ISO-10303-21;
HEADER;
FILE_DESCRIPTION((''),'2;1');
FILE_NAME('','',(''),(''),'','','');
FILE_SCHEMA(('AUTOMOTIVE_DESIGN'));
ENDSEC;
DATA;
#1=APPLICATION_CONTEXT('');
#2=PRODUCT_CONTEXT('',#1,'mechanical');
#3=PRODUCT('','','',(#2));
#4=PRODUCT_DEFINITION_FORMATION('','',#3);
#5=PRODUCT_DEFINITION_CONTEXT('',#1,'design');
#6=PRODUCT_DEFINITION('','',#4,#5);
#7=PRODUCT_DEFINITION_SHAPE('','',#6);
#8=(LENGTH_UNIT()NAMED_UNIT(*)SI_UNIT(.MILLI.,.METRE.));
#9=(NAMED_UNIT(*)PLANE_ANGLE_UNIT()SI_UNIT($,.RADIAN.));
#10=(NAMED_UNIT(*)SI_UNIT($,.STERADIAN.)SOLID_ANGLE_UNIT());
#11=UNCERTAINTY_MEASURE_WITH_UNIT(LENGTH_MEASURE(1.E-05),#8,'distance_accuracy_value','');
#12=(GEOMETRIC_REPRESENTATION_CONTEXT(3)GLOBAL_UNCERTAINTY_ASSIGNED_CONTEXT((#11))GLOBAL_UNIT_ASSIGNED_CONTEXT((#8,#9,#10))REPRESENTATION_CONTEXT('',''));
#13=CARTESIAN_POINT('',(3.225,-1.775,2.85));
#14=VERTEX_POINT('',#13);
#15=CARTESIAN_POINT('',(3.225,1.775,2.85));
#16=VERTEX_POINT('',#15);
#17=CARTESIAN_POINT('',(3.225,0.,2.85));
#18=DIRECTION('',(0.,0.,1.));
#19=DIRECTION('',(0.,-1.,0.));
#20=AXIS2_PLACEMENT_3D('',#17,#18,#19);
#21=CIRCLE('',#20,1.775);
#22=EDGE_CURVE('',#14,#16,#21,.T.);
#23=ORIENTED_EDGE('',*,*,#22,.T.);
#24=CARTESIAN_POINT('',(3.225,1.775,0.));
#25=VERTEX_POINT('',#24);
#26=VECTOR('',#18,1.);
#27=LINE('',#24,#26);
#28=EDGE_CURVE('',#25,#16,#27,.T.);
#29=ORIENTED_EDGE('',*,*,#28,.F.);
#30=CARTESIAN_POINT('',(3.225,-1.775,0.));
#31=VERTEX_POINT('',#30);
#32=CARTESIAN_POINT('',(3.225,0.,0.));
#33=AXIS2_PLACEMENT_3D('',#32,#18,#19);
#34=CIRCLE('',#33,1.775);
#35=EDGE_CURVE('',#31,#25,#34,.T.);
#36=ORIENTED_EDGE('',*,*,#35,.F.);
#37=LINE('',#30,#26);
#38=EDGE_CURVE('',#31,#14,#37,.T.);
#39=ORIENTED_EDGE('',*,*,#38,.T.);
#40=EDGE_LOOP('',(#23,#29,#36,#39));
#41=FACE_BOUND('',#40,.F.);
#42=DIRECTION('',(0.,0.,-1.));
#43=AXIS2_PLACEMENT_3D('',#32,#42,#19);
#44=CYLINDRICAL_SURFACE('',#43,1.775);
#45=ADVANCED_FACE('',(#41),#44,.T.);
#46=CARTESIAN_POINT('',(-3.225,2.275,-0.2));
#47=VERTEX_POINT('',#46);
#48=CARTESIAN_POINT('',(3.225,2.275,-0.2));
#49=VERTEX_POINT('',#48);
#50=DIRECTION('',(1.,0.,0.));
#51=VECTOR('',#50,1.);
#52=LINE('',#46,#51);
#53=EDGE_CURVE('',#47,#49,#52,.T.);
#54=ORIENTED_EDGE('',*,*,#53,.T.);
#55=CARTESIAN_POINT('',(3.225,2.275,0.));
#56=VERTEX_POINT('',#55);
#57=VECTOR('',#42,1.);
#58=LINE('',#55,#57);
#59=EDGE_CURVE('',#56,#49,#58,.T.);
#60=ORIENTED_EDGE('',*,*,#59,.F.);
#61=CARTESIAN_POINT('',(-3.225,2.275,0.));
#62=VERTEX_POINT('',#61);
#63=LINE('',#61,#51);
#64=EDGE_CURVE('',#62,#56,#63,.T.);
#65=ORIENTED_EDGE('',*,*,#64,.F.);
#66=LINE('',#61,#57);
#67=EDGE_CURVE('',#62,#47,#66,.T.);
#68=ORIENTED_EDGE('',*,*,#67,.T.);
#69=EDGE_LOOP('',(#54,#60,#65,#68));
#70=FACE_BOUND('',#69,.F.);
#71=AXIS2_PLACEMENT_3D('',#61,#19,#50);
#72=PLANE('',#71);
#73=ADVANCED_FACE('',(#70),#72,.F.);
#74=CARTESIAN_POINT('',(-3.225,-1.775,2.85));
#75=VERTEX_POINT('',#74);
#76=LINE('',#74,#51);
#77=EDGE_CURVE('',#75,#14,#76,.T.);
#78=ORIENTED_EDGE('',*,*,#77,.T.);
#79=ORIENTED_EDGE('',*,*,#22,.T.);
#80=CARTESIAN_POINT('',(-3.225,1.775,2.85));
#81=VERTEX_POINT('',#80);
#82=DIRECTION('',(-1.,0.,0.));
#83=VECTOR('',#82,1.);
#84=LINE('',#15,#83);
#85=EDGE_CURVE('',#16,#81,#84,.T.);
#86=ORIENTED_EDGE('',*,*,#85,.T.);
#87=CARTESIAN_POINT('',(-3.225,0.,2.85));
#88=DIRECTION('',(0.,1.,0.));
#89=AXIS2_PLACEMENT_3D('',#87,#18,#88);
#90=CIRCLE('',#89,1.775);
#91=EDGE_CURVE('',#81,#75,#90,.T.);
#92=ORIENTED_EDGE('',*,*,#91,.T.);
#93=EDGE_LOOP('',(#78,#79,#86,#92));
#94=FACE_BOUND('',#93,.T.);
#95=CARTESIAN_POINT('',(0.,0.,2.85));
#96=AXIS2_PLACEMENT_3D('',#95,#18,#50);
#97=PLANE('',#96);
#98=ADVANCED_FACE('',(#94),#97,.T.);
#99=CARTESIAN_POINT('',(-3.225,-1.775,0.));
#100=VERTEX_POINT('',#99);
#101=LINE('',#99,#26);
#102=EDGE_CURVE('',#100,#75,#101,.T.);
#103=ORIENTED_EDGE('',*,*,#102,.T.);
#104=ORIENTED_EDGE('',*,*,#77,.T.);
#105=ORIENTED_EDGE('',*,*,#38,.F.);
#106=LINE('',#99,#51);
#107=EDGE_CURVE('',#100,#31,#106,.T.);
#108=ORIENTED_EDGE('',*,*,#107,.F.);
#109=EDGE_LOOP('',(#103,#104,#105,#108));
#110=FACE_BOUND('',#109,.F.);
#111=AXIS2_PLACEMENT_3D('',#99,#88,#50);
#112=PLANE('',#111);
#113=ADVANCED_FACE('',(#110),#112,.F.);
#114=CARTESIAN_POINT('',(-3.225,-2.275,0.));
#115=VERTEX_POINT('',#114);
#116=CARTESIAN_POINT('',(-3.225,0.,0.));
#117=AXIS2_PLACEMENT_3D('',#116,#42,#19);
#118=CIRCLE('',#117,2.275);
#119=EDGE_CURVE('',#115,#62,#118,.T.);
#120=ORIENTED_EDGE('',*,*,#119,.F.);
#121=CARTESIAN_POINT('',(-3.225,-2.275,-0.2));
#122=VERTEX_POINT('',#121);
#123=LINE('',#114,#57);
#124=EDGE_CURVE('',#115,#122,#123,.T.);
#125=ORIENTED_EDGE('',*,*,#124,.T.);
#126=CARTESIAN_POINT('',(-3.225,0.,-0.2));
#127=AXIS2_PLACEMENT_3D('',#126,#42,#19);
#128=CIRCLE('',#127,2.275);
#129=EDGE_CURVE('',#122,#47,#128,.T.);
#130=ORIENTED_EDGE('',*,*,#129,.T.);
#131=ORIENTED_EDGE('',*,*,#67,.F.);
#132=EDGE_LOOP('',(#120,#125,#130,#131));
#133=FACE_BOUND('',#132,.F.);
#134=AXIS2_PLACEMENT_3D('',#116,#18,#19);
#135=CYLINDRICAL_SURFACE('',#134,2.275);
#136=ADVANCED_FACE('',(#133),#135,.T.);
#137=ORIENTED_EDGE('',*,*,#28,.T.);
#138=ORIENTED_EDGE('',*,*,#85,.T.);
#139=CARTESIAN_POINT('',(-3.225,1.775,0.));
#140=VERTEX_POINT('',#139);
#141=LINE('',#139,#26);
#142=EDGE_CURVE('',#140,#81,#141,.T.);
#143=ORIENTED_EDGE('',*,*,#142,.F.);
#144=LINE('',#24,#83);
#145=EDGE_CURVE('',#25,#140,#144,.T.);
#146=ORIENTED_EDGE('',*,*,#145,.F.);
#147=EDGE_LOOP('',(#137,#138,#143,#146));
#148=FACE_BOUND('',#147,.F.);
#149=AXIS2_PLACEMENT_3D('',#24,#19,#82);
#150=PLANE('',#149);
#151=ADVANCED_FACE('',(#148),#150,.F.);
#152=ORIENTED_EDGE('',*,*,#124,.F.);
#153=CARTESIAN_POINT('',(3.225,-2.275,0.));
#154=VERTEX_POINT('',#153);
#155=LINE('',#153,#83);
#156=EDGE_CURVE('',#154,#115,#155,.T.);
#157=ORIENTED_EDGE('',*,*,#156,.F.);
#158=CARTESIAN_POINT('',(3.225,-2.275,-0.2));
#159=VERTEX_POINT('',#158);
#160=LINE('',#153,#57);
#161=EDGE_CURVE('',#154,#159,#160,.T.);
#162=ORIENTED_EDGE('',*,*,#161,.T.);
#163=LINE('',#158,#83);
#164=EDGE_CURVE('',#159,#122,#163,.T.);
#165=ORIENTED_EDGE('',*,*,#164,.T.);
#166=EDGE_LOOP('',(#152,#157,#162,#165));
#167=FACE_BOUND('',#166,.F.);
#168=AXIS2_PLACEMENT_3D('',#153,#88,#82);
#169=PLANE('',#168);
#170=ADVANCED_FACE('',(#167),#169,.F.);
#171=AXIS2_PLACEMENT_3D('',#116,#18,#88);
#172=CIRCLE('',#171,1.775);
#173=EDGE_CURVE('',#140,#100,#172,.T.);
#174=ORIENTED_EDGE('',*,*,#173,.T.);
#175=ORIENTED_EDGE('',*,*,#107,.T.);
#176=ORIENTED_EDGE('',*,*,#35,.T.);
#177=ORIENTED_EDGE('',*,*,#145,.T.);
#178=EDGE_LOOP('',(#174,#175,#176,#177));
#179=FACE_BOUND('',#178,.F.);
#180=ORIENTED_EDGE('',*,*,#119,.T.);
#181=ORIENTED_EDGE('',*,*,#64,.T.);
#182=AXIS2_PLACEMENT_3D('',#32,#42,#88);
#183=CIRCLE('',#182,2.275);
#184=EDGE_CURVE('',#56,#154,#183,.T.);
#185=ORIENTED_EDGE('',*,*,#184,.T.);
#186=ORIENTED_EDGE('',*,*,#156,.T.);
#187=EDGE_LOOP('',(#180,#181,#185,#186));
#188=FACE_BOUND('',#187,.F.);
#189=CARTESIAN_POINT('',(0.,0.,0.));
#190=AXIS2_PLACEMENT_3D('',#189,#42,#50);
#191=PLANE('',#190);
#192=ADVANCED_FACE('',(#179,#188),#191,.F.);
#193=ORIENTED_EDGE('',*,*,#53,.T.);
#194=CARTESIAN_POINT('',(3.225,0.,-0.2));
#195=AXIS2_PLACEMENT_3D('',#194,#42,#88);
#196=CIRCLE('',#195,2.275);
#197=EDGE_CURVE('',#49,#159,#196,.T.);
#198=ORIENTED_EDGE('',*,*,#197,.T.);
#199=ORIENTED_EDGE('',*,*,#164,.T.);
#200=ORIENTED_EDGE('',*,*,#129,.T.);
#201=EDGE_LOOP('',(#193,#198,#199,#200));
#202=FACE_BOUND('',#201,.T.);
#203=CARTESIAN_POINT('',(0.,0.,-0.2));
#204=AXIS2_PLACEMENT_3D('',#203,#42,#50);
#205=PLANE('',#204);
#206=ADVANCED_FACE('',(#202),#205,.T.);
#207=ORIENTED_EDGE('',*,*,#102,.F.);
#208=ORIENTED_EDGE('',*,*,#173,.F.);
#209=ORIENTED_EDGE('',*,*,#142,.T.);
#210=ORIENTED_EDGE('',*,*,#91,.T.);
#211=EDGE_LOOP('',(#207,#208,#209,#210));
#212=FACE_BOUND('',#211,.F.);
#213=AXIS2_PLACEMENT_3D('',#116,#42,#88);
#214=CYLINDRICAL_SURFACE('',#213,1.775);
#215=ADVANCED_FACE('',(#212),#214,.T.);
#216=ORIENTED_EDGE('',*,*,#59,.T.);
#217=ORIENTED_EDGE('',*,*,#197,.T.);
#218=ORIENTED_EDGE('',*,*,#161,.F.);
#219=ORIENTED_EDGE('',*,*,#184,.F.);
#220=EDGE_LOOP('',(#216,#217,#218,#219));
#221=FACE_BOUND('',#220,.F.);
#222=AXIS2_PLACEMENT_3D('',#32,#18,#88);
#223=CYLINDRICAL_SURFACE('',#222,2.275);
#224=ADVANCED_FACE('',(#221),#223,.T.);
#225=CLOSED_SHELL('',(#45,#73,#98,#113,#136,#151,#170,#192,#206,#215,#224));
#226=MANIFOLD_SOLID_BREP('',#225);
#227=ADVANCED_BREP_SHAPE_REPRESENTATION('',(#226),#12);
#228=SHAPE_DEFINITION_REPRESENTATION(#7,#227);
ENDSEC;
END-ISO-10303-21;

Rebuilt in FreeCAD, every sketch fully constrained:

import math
import FreeCAD as App
import Part
import Sketcher
Q = App.Units.Quantity

doc = App.newDocument("Part")
body = doc.addObject("PartDesign::Body", "Body")

# Sketch on XY plane
sketch1 = body.newObject("Sketcher::SketchObject", "Sketch")
sketch1.AttachmentSupport = (doc.getObject("XY_Plane"), [""])
sketch1.MapMode = "FlatFace"
sketch1.addGeometry([
    Part.LineSegment(App.Vector(-3.2, -1.8, 0), App.Vector(3.2, -1.8, 0)),
    Part.ArcOfCircle(Part.Circle(App.Vector(3.2, 0, 0), App.Vector(0, 0, 1), 1.8), math.radians(-90), math.radians(90)),
    Part.LineSegment(App.Vector(3.2, 1.8, 0), App.Vector(-3.2, 1.8, 0)),
    Part.ArcOfCircle(Part.Circle(App.Vector(-3.2, 0, 0), App.Vector(0, 0, 1), 1.8), math.radians(90), math.radians(270)),
], False)
sketch1.addConstraint([
    Sketcher.Constraint("Tangent", 0, 2, 1, 1),
    Sketcher.Constraint("Tangent", 1, 2, 2, 1),
    Sketcher.Constraint("Tangent", 2, 2, 3, 1),
    Sketcher.Constraint("Tangent", 3, 2, 0, 1),
    Sketcher.Constraint("Horizontal", 0),
    Sketcher.Constraint("Horizontal", 2),
    Sketcher.Constraint("Symmetric", 1, 3, 3, 3, -1, 1),
    Sketcher.Constraint("Radius", 1, Q("1.775 mm")),
    Sketcher.Constraint("DistanceX", 0, 1, 0, 2, Q("6.45 mm")),
])
pad1 = body.newObject("PartDesign::Pad", "Pad")
pad1.Profile = sketch1
pad1.Length = 2.85

# Sketch on XY plane
sketch2 = body.newObject("Sketcher::SketchObject", "Sketch001")
sketch2.AttachmentSupport = (doc.getObject("XY_Plane"), [""])
sketch2.MapMode = "FlatFace"
sketch2.addGeometry([
    Part.LineSegment(App.Vector(-3.2, 2.3, 0), App.Vector(3.2, 2.3, 0)),
    Part.ArcOfCircle(Part.Circle(App.Vector(3.2, 0, 0), App.Vector(0, 0, 1), 2.3), math.radians(-90), math.radians(90)),
    Part.LineSegment(App.Vector(3.2, -2.3, 0), App.Vector(-3.2, -2.3, 0)),
    Part.ArcOfCircle(Part.Circle(App.Vector(-3.2, 0, 0), App.Vector(0, 0, 1), 2.3), math.radians(90), math.radians(270)),
], False)
sketch2.addConstraint([
    Sketcher.Constraint("Tangent", 0, 2, 1, 2),
    Sketcher.Constraint("Tangent", 1, 1, 2, 1),
    Sketcher.Constraint("Tangent", 2, 2, 3, 2),
    Sketcher.Constraint("Tangent", 3, 1, 0, 1),
    Sketcher.Constraint("Horizontal", 0),
    Sketcher.Constraint("Horizontal", 2),
    Sketcher.Constraint("Symmetric", 1, 3, 3, 3, -1, 1),
    Sketcher.Constraint("Radius", 1, Q("2.275 mm")),
    Sketcher.Constraint("DistanceX", 0, 1, 0, 2, Q("6.45 mm")),
])
pad2 = body.newObject("PartDesign::Pad", "Pad001")
pad2.Profile = sketch2
pad2.Length = 0.2
pad2.Reversed = True

doc.recompute()
